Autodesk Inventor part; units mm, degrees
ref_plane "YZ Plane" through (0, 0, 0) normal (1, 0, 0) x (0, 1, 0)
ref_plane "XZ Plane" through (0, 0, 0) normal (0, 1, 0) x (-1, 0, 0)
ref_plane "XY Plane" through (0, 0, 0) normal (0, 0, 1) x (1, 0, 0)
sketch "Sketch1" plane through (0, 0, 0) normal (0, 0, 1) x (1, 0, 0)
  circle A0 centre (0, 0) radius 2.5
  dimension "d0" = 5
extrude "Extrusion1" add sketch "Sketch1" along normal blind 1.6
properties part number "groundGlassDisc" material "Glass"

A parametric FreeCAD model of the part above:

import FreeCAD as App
import Part
import Sketcher

V = App.Vector
Q = App.Units.Quantity

doc = App.newDocument("Part")
body = doc.addObject("PartDesign::Body", "Body")

sketch1 = doc.addObject("Sketcher::SketchObject", "Sketch")
body.addObject(sketch1)
sketch1.AttachmentSupport = (doc.XY_Plane, [""])
sketch1.MapMode = "FlatFace"
sketch1.addGeometry(Part.Circle(V(0, 0, 0), V(0, 0, 1), 2.5), False)
sketch1.addConstraint([
    Sketcher.Constraint("Coincident", 0, 3, -1, 1),
    Sketcher.Constraint("Diameter", 0, Q("5 mm")),
])
pad1 = doc.addObject("PartDesign::Pad", "Pad")
body.addObject(pad1)
pad1.Profile = sketch1
pad1.Length = 1.6

doc.recompute()
